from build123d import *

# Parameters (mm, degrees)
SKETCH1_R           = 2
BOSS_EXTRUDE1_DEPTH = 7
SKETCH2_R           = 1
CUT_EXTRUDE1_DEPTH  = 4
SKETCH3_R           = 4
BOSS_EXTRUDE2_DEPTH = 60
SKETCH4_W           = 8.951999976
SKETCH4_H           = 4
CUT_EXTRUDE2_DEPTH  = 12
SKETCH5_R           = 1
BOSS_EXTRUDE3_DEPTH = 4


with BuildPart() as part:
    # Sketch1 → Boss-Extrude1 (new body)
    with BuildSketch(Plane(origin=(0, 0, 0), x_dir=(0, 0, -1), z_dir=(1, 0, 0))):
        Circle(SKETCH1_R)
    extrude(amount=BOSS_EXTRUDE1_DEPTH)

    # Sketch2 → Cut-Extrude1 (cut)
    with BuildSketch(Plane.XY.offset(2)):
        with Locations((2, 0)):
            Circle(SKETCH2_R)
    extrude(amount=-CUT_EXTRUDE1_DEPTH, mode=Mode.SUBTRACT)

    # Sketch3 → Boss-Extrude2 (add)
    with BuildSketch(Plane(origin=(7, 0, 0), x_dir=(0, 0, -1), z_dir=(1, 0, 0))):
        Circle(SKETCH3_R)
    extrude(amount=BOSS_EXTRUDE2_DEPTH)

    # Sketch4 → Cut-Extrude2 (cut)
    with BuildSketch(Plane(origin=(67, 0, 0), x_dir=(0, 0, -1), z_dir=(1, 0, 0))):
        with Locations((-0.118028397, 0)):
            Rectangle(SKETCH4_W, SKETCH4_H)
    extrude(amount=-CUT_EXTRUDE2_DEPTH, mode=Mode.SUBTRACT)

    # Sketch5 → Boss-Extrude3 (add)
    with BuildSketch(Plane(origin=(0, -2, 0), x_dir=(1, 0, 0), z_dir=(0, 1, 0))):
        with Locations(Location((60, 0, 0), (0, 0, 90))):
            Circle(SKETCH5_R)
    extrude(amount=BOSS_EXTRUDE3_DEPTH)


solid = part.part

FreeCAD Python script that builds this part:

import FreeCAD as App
import Part
import Sketcher

V = App.Vector


def add_polygon(sketch, points):
    """Adds a closed chain of lines whose ends are joined by coincident constraints."""
    first, n = sketch.GeometryCount, len(points)
    for a, b in zip(points, points[1:] + points[:1]):
        sketch.addGeometry(Part.LineSegment(App.Vector(*a, 0), App.Vector(*b, 0)), False)
    for i in range(n):
        sketch.addConstraint(Sketcher.Constraint("Coincident", first + i, 2, first + (i + 1) % n, 1))

doc = App.newDocument("Part")
body = doc.addObject("PartDesign::Body", "Body")

# Sketch on YZ plane
sketch1 = body.newObject("Sketcher::SketchObject", "Sketch")
sketch1.AttachmentSupport = (doc.getObject("YZ_Plane"), [""])
sketch1.MapMode = "FlatFace"
sketch1.addGeometry(Part.Circle(V(0, 0, 0), V(0, 0, 1), 2), False)
sketch1.addConstraint(Sketcher.Constraint("Coincident", 0, 3, -1, 1))
sketch1.addConstraint(Sketcher.Constraint("Diameter", 0, 4.0))
pad1 = body.newObject("PartDesign::Pad", "Pad")
pad1.Profile = sketch1
pad1.Length = 7

# Sketch on XY plane
sketch2 = body.newObject("Sketcher::SketchObject", "Sketch001")
sketch2.AttachmentSupport = (doc.getObject("XY_Plane"), [""])
sketch2.MapMode = "FlatFace"
sketch2.AttachmentOffset = App.Placement(V(0, 0, 2), App.Rotation())
sketch2.addGeometry(Part.Circle(V(2, 0, 0), V(0, 0, 1), 1), False)
sketch2.addConstraint(Sketcher.Constraint("PointOnObject", 0, 3, -1))
sketch2.addConstraint(Sketcher.Constraint("Diameter", 0, 2.0))
sketch2.addConstraint(Sketcher.Constraint("DistanceX", -1, 1, 0, 3, 2.0))
pocket1 = body.newObject("PartDesign::Pocket", "Pocket")
pocket1.Profile = sketch2
pocket1.Length = 4

# Sketch on YZ plane
sketch3 = body.newObject("Sketcher::SketchObject", "Sketch002")
sketch3.AttachmentSupport = (doc.getObject("YZ_Plane"), [""])
sketch3.MapMode = "FlatFace"
sketch3.AttachmentOffset = App.Placement(V(0, 0, 7), App.Rotation())
sketch3.addGeometry(Part.Circle(V(0, 0, 0), V(0, 0, 1), 4), False)
sketch3.addConstraint(Sketcher.Constraint("Coincident", 0, 3, -1, 1))
sketch3.addConstraint(Sketcher.Constraint("Diameter", 0, 8.0))
pad2 = body.newObject("PartDesign::Pad", "Pad001")
pad2.Profile = sketch3
pad2.Length = 60

# Sketch on YZ plane
sketch4 = body.newObject("Sketcher::SketchObject", "Sketch003")
sketch4.AttachmentSupport = (doc.getObject("YZ_Plane"), [""])
sketch4.MapMode = "FlatFace"
sketch4.AttachmentOffset = App.Placement(V(0, 0, 67), App.Rotation())
add_polygon(sketch4, [(2, 4.594028), (-2, 4.594028), (-2, -4.357972), (2, -4.357972)])  # lines 0-3
sketch4.addConstraint(Sketcher.Constraint("Horizontal", 0))
sketch4.addConstraint(Sketcher.Constraint("Vertical", 1))
sketch4.addConstraint(Sketcher.Constraint("Horizontal", 2))
sketch4.addConstraint(Sketcher.Constraint("Vertical", 3))
sketch4.addConstraint(Sketcher.Constraint("DistanceX", 0, 2, 0, 1, 4.0))
sketch4.addConstraint(Sketcher.Constraint("DistanceX", 0, 2, -1, 1, 2.0))
sketch4.addConstraint(Sketcher.Constraint("DistanceY", 1, 2, 1, 1, 8.952))
sketch4.addConstraint(Sketcher.Constraint("DistanceY", -1, 1, 0, 2, 4.594028))
pocket2 = body.newObject("PartDesign::Pocket", "Pocket001")
pocket2.Profile = sketch4
pocket2.Length = 12

# Sketch on XZ plane
sketch5 = body.newObject("Sketcher::SketchObject", "Sketch004")
sketch5.AttachmentSupport = (doc.getObject("XZ_Plane"), [""])
sketch5.MapMode = "FlatFace"
sketch5.AttachmentOffset = App.Placement(V(0, 0, 2), App.Rotation())
sketch5.addGeometry(Part.Circle(V(60, 0, 0), V(0, 0, 1), 1), False)
sketch5.addConstraint(Sketcher.Constraint("PointOnObject", 0, 3, -1))
sketch5.addConstraint(Sketcher.Constraint("Diameter", 0, 2.0))
sketch5.addConstraint(Sketcher.Constraint("DistanceX", -1, 1, 0, 3, 60.0))
pad3 = body.newObject("PartDesign::Pad", "Pad002")
pad3.Profile = sketch5
pad3.Length = 4
pad3.Reversed = True

doc.recompute()
